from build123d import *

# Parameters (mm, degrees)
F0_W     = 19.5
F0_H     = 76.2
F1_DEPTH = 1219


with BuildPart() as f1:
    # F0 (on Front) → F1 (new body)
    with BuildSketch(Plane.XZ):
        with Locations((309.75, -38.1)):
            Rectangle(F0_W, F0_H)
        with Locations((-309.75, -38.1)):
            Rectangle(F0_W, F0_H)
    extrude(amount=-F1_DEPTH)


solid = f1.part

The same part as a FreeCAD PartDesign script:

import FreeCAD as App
import Part
import Sketcher
from FreeCAD import Vector
Q = App.Units.Quantity


def add_polygon(sketch, points):
    """Adds a closed chain of lines whose ends are joined by coincident constraints."""
    first, n = sketch.GeometryCount, len(points)
    for a, b in zip(points, points[1:] + points[:1]):
        sketch.addGeometry(Part.LineSegment(App.Vector(*a, 0), App.Vector(*b, 0)), False)
    for i in range(n):
        sketch.addConstraint(Sketcher.Constraint("Coincident", first + i, 2, first + (i + 1) % n, 1))

doc = App.newDocument("Part")
body = doc.addObject("PartDesign::Body", "Body")
body.AllowCompound = True

# Sketch on XZ plane
sketch1 = body.newObject("Sketcher::SketchObject", "Sketch")
sketch1.AttachmentSupport = (doc.getObject("XZ_Plane"), [""])
sketch1.MapMode = "FlatFace"
add_polygon(sketch1, [(300, 0), (300, -76), (320, -76), (320, 0)])  # lines 0-3
add_polygon(sketch1, [(-320, 0), (-320, -76), (-300, -76), (-300, 0)])  # lines 4-7
sketch1.addConstraint(Sketcher.Constraint("Vertical", 0))
sketch1.addConstraint(Sketcher.Constraint("Horizontal", 1))
sketch1.addConstraint(Sketcher.Constraint("Vertical", 2))
sketch1.addConstraint(Sketcher.Constraint("Horizontal", 3))
sketch1.addConstraint(Sketcher.Constraint("Vertical", 4))
sketch1.addConstraint(Sketcher.Constraint("Horizontal", 5))
sketch1.addConstraint(Sketcher.Constraint("Vertical", 6))
sketch1.addConstraint(Sketcher.Constraint("Horizontal", 7))
sketch1.addConstraint(Sketcher.Constraint("Symmetric", 3, 2, 6, 2, -1, 1))
sketch1.addConstraint(Sketcher.Constraint("Symmetric", 1, 2, 4, 2, -2))
sketch1.addConstraint(Sketcher.Constraint("PointOnObject", 2, 2, -1))
sketch1.addConstraint(Sketcher.Constraint("DistanceX", 1, 1, 1, 2, Q("19.5 mm")))
sketch1.addConstraint(Sketcher.Constraint("DistanceY", 0, 2, 0, 1, Q("76.2 mm")))
sketch1.addConstraint(Sketcher.Constraint("DistanceX", -1, 1, 0, 2, Q("300 mm")))
pad1 = body.newObject("PartDesign::Pad", "Pad")
pad1.Profile = sketch1
pad1.Length = 1219
pad1.Reversed = True

doc.recompute()
